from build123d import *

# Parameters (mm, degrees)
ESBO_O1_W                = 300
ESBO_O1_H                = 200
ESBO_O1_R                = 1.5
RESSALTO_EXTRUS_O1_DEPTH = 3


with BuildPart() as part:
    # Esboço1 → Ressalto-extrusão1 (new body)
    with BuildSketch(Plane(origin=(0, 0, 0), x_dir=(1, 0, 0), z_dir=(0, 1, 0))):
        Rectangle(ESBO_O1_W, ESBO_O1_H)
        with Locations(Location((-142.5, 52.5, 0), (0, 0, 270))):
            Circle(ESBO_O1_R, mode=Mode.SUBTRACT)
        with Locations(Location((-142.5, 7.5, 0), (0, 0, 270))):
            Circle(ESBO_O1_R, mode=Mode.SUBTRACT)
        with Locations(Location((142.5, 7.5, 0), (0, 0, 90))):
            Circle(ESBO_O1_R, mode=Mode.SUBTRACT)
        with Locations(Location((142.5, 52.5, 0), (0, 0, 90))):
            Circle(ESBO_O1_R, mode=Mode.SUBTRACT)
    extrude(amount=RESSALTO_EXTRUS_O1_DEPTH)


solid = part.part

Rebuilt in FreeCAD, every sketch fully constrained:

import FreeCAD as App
import Part
import Sketcher

V = App.Vector


def add_polygon(sketch, points):
    """Adds a closed chain of lines whose ends are joined by coincident constraints."""
    first, n = sketch.GeometryCount, len(points)
    for a, b in zip(points, points[1:] + points[:1]):
        sketch.addGeometry(Part.LineSegment(App.Vector(*a, 0), App.Vector(*b, 0)), False)
    for i in range(n):
        sketch.addConstraint(Sketcher.Constraint("Coincident", first + i, 2, first + (i + 1) % n, 1))

doc = App.newDocument("Part")
body = doc.addObject("PartDesign::Body", "Body")

# Sketch on XZ plane
sketch1 = body.newObject("Sketcher::SketchObject", "Sketch")
sketch1.AttachmentSupport = (doc.getObject("XZ_Plane"), [""])
sketch1.MapMode = "FlatFace"
add_polygon(sketch1, [(-150, -100), (-150, 100), (150, 100), (150, -100)])  # lines 0-3
sketch1.addGeometry(Part.Circle(V(-142.5, -7.5, 0), V(0, 0, 1), 1.5), False)  # 4
sketch1.addGeometry(Part.Circle(V(142.5, -7.5, 0), V(0, 0, 1), 1.5), False)  # 5
sketch1.addGeometry(Part.Circle(V(-142.5, -52.5, 0), V(0, 0, 1), 1.5), False)  # 6
sketch1.addGeometry(Part.Circle(V(142.5, -52.5, 0), V(0, 0, 1), 1.5), False)  # 7
sketch1.addConstraint([
    Sketcher.Constraint("Vertical", 0),
    Sketcher.Constraint("Horizontal", 1),
    Sketcher.Constraint("Vertical", 2),
    Sketcher.Constraint("Horizontal", 3),
    Sketcher.Constraint("Equal", 4, 5),
    Sketcher.Constraint("Equal", 5, 6),
    Sketcher.Constraint("Equal", 6, 7),
    Sketcher.Constraint("Symmetric", 0, 2, 2, 2, -1, 1),
    Sketcher.Constraint("Symmetric", 4, 3, 5, 3, -2),
    Sketcher.Constraint("Symmetric", 6, 3, 7, 3, -2),
    Sketcher.Constraint("Vertical", 4, 3, 6, 3),
    Sketcher.Constraint("Diameter", 4, 3.0),
    Sketcher.Constraint("DistanceX", 1, 1, 1, 2, 300.0),
    Sketcher.Constraint("DistanceY", 0, 1, 0, 2, 200.0),
    Sketcher.Constraint("DistanceX", 4, 3, 5, 3, 285.0),
    Sketcher.Constraint("DistanceY", 6, 3, 4, 3, 45.0),
    Sketcher.Constraint("DistanceY", 4, 3, -1, 1, 7.5),
])
pad1 = body.newObject("PartDesign::Pad", "Pad")
pad1.Profile = sketch1
pad1.Length = 3
pad1.Reversed = True

doc.recompute()
